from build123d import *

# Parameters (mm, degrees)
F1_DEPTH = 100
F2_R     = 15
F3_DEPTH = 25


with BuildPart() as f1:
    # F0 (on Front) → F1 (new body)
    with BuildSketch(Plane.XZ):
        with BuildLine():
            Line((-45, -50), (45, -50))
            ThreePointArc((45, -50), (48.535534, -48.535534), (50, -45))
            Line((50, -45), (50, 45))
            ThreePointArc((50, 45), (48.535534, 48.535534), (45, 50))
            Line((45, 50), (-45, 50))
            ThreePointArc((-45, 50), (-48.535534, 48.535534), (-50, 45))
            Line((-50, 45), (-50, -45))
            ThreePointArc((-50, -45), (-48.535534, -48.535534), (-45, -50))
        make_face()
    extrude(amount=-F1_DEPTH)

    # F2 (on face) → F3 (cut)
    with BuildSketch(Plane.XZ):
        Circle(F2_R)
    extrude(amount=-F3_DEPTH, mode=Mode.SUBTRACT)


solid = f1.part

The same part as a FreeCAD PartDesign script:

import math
import FreeCAD as App
import Part
import Sketcher
from FreeCAD import Vector
Q = App.Units.Quantity

doc = App.newDocument("Part")
body = doc.addObject("PartDesign::Body", "Body")

# Sketch on XZ plane
sketch1 = body.newObject("Sketcher::SketchObject", "Sketch")
sketch1.AttachmentSupport = (doc.getObject("XZ_Plane"), [""])
sketch1.MapMode = "FlatFace"
sketch1.addGeometry(Part.LineSegment(Vector(-45, -50, 0), Vector(45, -50, 0)), False)
sketch1.addGeometry(Part.ArcOfCircle(Part.Circle(Vector(45, -45, 0), Vector(0, 0, 1), 5), math.radians(-90), math.radians(0)), False)
sketch1.addGeometry(Part.LineSegment(Vector(50, -45, 0), Vector(50, 45, 0)), False)
sketch1.addGeometry(Part.ArcOfCircle(Part.Circle(Vector(45, 45, 0), Vector(0, 0, 1), 5), math.radians(0), math.radians(90)), False)
sketch1.addGeometry(Part.LineSegment(Vector(45, 50, 0), Vector(-45, 50, 0)), False)
sketch1.addGeometry(Part.ArcOfCircle(Part.Circle(Vector(-45, 45, 0), Vector(0, 0, 1), 5), math.radians(90), math.radians(180)), False)
sketch1.addGeometry(Part.LineSegment(Vector(-50, 45, 0), Vector(-50, -45, 0)), False)
sketch1.addGeometry(Part.ArcOfCircle(Part.Circle(Vector(-45, -45, 0), Vector(0, 0, 1), 5), math.radians(180), math.radians(270)), False)
sketch1.addConstraint(Sketcher.Constraint("Tangent", 0, 2, 1, 1))
sketch1.addConstraint(Sketcher.Constraint("Tangent", 1, 2, 2, 1))
sketch1.addConstraint(Sketcher.Constraint("Tangent", 2, 2, 3, 1))
sketch1.addConstraint(Sketcher.Constraint("Tangent", 3, 2, 4, 1))
sketch1.addConstraint(Sketcher.Constraint("Tangent", 4, 2, 5, 1))
sketch1.addConstraint(Sketcher.Constraint("Tangent", 5, 2, 6, 1))
sketch1.addConstraint(Sketcher.Constraint("Tangent", 6, 2, 7, 1))
sketch1.addConstraint(Sketcher.Constraint("Tangent", 7, 2, 0, 1))
sketch1.addConstraint(Sketcher.Constraint("Horizontal", 0))
sketch1.addConstraint(Sketcher.Constraint("Vertical", 2))
sketch1.addConstraint(Sketcher.Constraint("Horizontal", 4))
sketch1.addConstraint(Sketcher.Constraint("Vertical", 6))
sketch1.addConstraint(Sketcher.Constraint("Equal", 1, 3))
sketch1.addConstraint(Sketcher.Constraint("Equal", 3, 5))
sketch1.addConstraint(Sketcher.Constraint("Equal", 5, 7))
sketch1.addConstraint(Sketcher.Constraint("Symmetric", 1, 3, 5, 3, -1, 1))
sketch1.addConstraint(Sketcher.Constraint("Equal", 4, 2))
sketch1.addConstraint(Sketcher.Constraint("Radius", 1, Q("5 mm")))
sketch1.addConstraint(Sketcher.Constraint("DistanceX", 0, 1, 0, 2, Q("90 mm")))
pad1 = body.newObject("PartDesign::Pad", "Pad")
pad1.Profile = sketch1
pad1.Length = 100
pad1.Reversed = True

# Sketch on XZ plane
sketch2 = body.newObject("Sketcher::SketchObject", "Sketch001")
sketch2.AttachmentSupport = (doc.getObject("XZ_Plane"), [""])
sketch2.MapMode = "FlatFace"
sketch2.addGeometry(Part.Circle(Vector(0, 0, 0), Vector(0, 0, 1), 15), False)
sketch2.addConstraint(Sketcher.Constraint("Coincident", 0, 3, -1, 1))
sketch2.addConstraint(Sketcher.Constraint("Diameter", 0, Q("30 mm")))
pocket1 = body.newObject("PartDesign::Pocket", "Pocket")
pocket1.Profile = sketch2
pocket1.Length = 25

doc.recompute()
